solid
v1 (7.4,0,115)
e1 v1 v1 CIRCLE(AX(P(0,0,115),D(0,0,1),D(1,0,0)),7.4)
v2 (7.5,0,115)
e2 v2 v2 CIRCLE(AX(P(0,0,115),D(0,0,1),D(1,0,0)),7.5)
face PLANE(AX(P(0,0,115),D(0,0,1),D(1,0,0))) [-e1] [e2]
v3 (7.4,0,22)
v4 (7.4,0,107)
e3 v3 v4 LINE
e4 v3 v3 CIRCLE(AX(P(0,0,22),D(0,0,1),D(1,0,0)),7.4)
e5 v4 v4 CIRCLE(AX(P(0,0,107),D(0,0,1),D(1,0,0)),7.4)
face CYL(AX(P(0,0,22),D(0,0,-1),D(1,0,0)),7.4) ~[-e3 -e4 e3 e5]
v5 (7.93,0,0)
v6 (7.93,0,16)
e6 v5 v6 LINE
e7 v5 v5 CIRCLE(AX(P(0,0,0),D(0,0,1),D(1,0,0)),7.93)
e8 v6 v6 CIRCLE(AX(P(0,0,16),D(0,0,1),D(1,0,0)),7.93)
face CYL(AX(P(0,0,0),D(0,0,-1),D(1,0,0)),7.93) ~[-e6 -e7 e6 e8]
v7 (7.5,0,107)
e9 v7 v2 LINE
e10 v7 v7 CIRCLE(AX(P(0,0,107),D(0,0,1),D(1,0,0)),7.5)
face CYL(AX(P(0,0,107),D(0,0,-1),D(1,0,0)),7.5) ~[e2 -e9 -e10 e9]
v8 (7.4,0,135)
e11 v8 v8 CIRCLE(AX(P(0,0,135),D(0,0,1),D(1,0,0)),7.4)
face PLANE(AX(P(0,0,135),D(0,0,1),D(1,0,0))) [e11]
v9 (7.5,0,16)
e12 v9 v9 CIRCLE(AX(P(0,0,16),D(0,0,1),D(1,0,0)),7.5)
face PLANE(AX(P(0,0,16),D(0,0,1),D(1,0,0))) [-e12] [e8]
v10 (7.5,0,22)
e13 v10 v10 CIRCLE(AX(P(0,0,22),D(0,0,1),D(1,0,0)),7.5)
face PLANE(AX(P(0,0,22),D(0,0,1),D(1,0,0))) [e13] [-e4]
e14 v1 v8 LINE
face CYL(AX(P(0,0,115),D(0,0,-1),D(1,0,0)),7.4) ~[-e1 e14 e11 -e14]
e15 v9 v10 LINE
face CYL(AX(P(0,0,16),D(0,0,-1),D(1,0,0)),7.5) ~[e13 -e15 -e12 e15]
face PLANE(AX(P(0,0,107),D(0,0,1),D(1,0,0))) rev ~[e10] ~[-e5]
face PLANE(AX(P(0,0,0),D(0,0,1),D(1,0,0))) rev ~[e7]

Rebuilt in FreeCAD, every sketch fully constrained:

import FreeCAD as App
import Part
import Sketcher

V = App.Vector
Q = App.Units.Quantity

doc = App.newDocument("Part")
body = doc.addObject("PartDesign::Body", "Body")

# Sketch on XY plane
sketch1 = body.newObject("Sketcher::SketchObject", "Sketch")
sketch1.AttachmentSupport = (doc.getObject("XY_Plane"), [""])
sketch1.MapMode = "FlatFace"
sketch1.addGeometry(Part.Circle(V(0, 0, 0), V(0, 0, 1), 8), False)
sketch1.addConstraint([
    Sketcher.Constraint("Coincident", 0, 3, -1, 1),
    Sketcher.Constraint("Diameter", 0, Q("15.86 mm")),
])
pad1 = body.newObject("PartDesign::Pad", "Pad")
pad1.Profile = sketch1
pad1.Length = 16

# Sketch on XY plane
sketch2 = body.newObject("Sketcher::SketchObject", "Sketch001")
sketch2.AttachmentSupport = (doc.getObject("XY_Plane"), [""])
sketch2.MapMode = "FlatFace"
sketch2.AttachmentOffset = App.Placement(V(0, 0, 16), App.Rotation())
sketch2.addGeometry(Part.Circle(V(0, 0, 0), V(0, 0, 1), 8), False)
sketch2.addConstraint([
    Sketcher.Constraint("Coincident", 0, 3, -1, 1),
    Sketcher.Constraint("Diameter", 0, Q("15 mm")),
])
pad2 = body.newObject("PartDesign::Pad", "Pad001")
pad2.Profile = sketch2
pad2.Length = 6

# Sketch on XY plane
sketch3 = body.newObject("Sketcher::SketchObject", "Sketch002")
sketch3.AttachmentSupport = (doc.getObject("XY_Plane"), [""])
sketch3.MapMode = "FlatFace"
sketch3.AttachmentOffset = App.Placement(V(0, 0, 22), App.Rotation())
sketch3.addGeometry(Part.Circle(V(0, 0, 0), V(0, 0, 1), 7), False)
sketch3.addConstraint([
    Sketcher.Constraint("Coincident", 0, 3, -1, 1),
    Sketcher.Constraint("Diameter", 0, Q("14.8 mm")),
])
pad3 = body.newObject("PartDesign::Pad", "Pad002")
pad3.Profile = sketch3
pad3.Length = 85

# Sketch on XY plane
sketch4 = body.newObject("Sketcher::SketchObject", "Sketch003")
sketch4.AttachmentSupport = (doc.getObject("XY_Plane"), [""])
sketch4.MapMode = "FlatFace"
sketch4.AttachmentOffset = App.Placement(V(0, 0, 107), App.Rotation())
sketch4.addGeometry(Part.Circle(V(0, 0, 0), V(0, 0, 1), 8), False)
sketch4.addConstraint([
    Sketcher.Constraint("Coincident", 0, 3, -1, 1),
    Sketcher.Constraint("Diameter", 0, Q("15 mm")),
])
pad4 = body.newObject("PartDesign::Pad", "Pad003")
pad4.Profile = sketch4
pad4.Length = 8

# Sketch on XY plane
sketch5 = body.newObject("Sketcher::SketchObject", "Sketch004")
sketch5.AttachmentSupport = (doc.getObject("XY_Plane"), [""])
sketch5.MapMode = "FlatFace"
sketch5.AttachmentOffset = App.Placement(V(0, 0, 115), App.Rotation())
sketch5.addGeometry(Part.Circle(V(0, 0, 0), V(0, 0, 1), 7), False)
sketch5.addConstraint([
    Sketcher.Constraint("Coincident", 0, 3, -1, 1),
    Sketcher.Constraint("Diameter", 0, Q("14.8 mm")),
])
pad5 = body.newObject("PartDesign::Pad", "Pad004")
pad5.Profile = sketch5
pad5.Length = 20

doc.recompute()
